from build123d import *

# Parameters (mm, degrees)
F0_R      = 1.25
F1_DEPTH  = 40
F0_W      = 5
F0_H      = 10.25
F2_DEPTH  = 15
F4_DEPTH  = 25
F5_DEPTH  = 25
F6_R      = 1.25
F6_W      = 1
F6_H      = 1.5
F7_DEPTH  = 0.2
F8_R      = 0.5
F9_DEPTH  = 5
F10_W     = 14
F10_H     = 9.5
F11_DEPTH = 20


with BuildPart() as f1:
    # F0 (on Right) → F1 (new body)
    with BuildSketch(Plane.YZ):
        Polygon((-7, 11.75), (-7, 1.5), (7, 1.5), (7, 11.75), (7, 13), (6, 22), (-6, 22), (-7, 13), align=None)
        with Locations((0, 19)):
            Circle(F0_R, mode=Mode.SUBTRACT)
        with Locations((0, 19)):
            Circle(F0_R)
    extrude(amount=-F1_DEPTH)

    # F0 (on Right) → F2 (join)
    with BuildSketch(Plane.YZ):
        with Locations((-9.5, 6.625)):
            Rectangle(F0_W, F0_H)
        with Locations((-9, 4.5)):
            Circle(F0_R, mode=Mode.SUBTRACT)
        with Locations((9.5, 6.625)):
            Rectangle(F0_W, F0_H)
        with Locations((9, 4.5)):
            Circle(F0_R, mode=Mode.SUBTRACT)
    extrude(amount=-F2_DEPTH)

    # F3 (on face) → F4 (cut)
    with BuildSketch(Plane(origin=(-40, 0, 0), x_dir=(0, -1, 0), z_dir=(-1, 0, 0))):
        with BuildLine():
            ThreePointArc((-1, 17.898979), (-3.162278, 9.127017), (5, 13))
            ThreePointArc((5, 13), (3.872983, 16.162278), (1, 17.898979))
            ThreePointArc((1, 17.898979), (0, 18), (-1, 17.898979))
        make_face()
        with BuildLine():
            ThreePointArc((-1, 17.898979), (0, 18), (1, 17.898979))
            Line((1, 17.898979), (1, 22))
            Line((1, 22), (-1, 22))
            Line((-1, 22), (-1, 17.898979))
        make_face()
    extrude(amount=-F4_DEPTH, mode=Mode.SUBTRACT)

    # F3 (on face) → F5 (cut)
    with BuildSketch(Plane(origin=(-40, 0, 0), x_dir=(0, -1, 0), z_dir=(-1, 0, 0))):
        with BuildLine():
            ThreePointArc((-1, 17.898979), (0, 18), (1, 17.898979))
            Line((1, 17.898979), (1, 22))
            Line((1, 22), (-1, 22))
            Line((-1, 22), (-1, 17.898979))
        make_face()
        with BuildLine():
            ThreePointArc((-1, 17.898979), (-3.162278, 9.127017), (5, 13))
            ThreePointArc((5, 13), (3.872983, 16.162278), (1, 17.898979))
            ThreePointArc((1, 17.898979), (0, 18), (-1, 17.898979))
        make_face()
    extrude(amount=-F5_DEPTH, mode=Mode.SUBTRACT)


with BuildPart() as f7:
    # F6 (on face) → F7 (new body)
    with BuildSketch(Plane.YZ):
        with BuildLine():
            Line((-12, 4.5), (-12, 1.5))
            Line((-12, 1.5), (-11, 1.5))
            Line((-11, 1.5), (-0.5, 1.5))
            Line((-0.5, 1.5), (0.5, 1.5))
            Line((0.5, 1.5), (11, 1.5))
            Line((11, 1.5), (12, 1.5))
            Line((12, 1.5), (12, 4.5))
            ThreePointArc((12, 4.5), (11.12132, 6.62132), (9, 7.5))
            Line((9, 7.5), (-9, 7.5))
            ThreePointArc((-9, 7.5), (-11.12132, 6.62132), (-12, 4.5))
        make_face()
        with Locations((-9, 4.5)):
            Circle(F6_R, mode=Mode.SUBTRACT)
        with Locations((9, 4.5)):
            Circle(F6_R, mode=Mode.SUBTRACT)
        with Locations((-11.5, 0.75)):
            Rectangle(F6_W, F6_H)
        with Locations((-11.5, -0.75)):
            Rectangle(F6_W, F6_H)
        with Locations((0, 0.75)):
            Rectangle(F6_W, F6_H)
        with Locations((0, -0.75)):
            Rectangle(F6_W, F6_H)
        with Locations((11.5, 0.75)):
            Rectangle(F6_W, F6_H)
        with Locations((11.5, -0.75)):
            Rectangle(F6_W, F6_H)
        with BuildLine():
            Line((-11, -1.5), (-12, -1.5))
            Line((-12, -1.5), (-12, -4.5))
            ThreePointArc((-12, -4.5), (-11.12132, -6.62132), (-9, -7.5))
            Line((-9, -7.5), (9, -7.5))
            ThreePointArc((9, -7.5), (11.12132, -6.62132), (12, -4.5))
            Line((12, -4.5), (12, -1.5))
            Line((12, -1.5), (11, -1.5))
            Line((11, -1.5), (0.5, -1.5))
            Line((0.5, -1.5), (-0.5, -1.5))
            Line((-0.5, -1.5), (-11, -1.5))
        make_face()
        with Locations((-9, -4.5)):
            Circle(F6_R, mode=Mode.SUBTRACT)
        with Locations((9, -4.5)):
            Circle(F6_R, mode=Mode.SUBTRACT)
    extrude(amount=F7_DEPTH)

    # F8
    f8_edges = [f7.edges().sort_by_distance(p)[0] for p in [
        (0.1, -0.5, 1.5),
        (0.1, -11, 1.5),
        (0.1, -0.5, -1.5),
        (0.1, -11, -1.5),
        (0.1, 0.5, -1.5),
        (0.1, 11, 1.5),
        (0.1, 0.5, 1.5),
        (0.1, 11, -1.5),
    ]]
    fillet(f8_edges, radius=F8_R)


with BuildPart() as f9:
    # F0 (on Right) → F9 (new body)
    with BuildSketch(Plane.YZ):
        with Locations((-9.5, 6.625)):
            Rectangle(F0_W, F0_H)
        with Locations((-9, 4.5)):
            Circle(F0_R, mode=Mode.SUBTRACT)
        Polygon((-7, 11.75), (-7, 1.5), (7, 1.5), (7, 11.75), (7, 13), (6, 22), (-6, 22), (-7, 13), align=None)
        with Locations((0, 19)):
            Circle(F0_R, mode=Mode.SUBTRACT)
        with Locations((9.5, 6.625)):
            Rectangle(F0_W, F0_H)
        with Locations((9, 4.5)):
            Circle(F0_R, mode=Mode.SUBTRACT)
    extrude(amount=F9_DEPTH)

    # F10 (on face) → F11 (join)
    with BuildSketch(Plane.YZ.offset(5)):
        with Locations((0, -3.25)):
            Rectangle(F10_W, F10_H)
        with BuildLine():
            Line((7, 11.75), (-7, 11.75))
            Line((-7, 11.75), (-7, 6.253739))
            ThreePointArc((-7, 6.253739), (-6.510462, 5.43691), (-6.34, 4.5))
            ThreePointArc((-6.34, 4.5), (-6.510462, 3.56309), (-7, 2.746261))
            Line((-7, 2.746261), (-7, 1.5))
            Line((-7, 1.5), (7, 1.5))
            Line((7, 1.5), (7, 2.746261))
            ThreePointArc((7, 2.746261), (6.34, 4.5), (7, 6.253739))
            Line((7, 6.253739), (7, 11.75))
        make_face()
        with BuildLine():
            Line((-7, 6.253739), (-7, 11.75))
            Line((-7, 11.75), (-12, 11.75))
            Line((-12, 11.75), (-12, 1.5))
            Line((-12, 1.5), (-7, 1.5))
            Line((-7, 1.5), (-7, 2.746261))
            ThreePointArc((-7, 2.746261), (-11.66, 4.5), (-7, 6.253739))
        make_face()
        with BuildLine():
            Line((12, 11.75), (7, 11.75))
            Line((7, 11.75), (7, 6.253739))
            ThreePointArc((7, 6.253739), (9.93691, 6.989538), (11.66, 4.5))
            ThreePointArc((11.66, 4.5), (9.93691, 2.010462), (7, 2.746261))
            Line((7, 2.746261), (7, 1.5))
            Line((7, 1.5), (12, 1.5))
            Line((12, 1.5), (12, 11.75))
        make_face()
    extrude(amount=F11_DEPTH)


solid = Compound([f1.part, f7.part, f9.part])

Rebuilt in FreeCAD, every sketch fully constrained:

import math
import FreeCAD as App
import Part
import Sketcher


def edges_at(feature, points):
    """Names of the edges that pass closest to the given points."""
    edges = feature.Shape.Edges
    near = lambda p: min(range(len(edges)), key=lambda i: edges[i].distToShape(Part.Vertex(*p))[0])
    return sorted({f"Edge{near(p) + 1}" for p in points})


def add_polygon(sketch, points):
    """Adds a closed chain of lines whose ends are joined by coincident constraints."""
    first, n = sketch.GeometryCount, len(points)
    for a, b in zip(points, points[1:] + points[:1]):
        sketch.addGeometry(Part.LineSegment(App.Vector(*a, 0), App.Vector(*b, 0)), False)
    for i in range(n):
        sketch.addConstraint(Sketcher.Constraint("Coincident", first + i, 2, first + (i + 1) % n, 1))

doc = App.newDocument("Part")
body = doc.addObject("PartDesign::Body", "Body")

# Sketch on YZ plane
sketch1 = doc.addObject("Sketcher::SketchObject", "Sketch")
body.addObject(sketch1)
sketch1.AttachmentSupport = (doc.YZ_Plane, [""])
sketch1.MapMode = "FlatFace"
add_polygon(sketch1, [(-7, 2), (7, 2), (7, 13), (6, 22), (-6, 22), (-7, 13)])  # lines 0-5
sketch1.addConstraint([
    Sketcher.Constraint("Horizontal", 0),
    Sketcher.Constraint("Vertical", 1),
    Sketcher.Constraint("Horizontal", 3),
    Sketcher.Constraint("Vertical", 5),
    Sketcher.Constraint("Symmetric", 1, 2, 4, 2, -2),
    Sketcher.Constraint("Equal", 2, 4),
    Sketcher.Constraint("DistanceX", 0, 1, 0, 2, 14.0),
    Sketcher.Constraint("DistanceX", 3, 2, 3, 1, 12.0),
    Sketcher.Constraint("DistanceY", 1, 1, 1, 2, 11.5),
    Sketcher.Constraint("DistanceY", -1, 1, 1, 2, 13.0),
    Sketcher.Constraint("DistanceY", -1, 1, 2, 2, 22.0),
])
pad1 = doc.addObject("PartDesign::Pad", "Pad")
body.addObject(pad1)
pad1.Profile = sketch1
pad1.Length = 40
pad1.Reversed = True

# Sketch on YZ plane
sketch2 = doc.addObject("Sketcher::SketchObject", "Sketch001")
body.addObject(sketch2)
sketch2.AttachmentSupport = (doc.YZ_Plane, [""])
sketch2.MapMode = "FlatFace"
add_polygon(sketch2, [(-12, 11.8), (-12, 1.5), (-7, 1.5), (-7, 11.8)])  # lines 0-3
sketch2.addGeometry(Part.Circle(App.Vector(-9, 4.5, 0), App.Vector(0, 0, 1), 1.2), False)  # 4
add_polygon(sketch2, [(7, 11.8), (7, 1.5), (12, 1.5), (12, 11.8)])  # lines 5-8
sketch2.addGeometry(Part.Circle(App.Vector(9, 4.5, 0), App.Vector(0, 0, 1), 1.2), False)  # 9
sketch2.addConstraint([
    Sketcher.Constraint("Vertical", 0),
    Sketcher.Constraint("Horizontal", 1),
    Sketcher.Constraint("Vertical", 2),
    Sketcher.Constraint("Horizontal", 3),
    Sketcher.Constraint("Vertical", 5),
    Sketcher.Constraint("Horizontal", 6),
    Sketcher.Constraint("Vertical", 7),
    Sketcher.Constraint("Horizontal", 8),
    Sketcher.Constraint("Equal", 4, 9),
    Sketcher.Constraint("Symmetric", 4, 3, 9, 3, -2),
    Sketcher.Constraint("Symmetric", 1, 2, 5, 2, -2),
    Sketcher.Constraint("Symmetric", 3, 2, 7, 2, -2),
    Sketcher.Constraint("Diameter", 4, 2.5),
    Sketcher.Constraint("DistanceX", 1, 1, 1, 2, 5.0),
    Sketcher.Constraint("DistanceX", 4, 3, -1, 1, 9.0),
    Sketcher.Constraint("DistanceX", 0, 2, -1, 1, 12.0),
    Sketcher.Constraint("DistanceY", 0, 2, 4, 3, 3.0),
    Sketcher.Constraint("DistanceY", 0, 2, 0, 1, 10.25),
    Sketcher.Constraint("DistanceY", -1, 1, 4, 3, 4.5),
])
pad2 = doc.addObject("PartDesign::Pad", "Pad001")
body.addObject(pad2)
pad2.Profile = sketch2
pad2.Length = 15
pad2.Reversed = True

# Sketch on YZ plane
sketch3 = doc.addObject("Sketcher::SketchObject", "Sketch002")
body.addObject(sketch3)
sketch3.AttachmentSupport = (doc.YZ_Plane, [""])
sketch3.MapMode = "FlatFace"
sketch3.AttachmentOffset = App.Placement(App.Vector(0, 0, -40), App.Rotation())
sketch3.addGeometry([
    Part.ArcOfCircle(Part.Circle(App.Vector(0, 13, 0), App.Vector(0, 0, 1), 5), math.radians(180), math.radians(438)),  # 0
    Part.ArcOfCircle(Part.Circle(App.Vector(0, 13, 0), App.Vector(0, 0, 1), 5), math.radians(102), math.radians(180)),  # 1
    Part.LineSegment(App.Vector(-1, 17.9, 0), App.Vector(-1, 22, 0)),  # 2
    Part.LineSegment(App.Vector(-1, 22, 0), App.Vector(1, 22, 0)),  # 3
    Part.LineSegment(App.Vector(1, 22, 0), App.Vector(1, 17.9, 0)),  # 4
], False)
sketch3.addConstraint([
    Sketcher.Constraint("Tangent", 0, 1, 1, 2),
    Sketcher.Constraint("Coincident", 1, 1, 2, 1),
    Sketcher.Constraint("Coincident", 2, 2, 3, 1),
    Sketcher.Constraint("Coincident", 3, 2, 4, 1),
    Sketcher.Constraint("Coincident", 4, 2, 0, 2),
    Sketcher.Constraint("Vertical", 2),
    Sketcher.Constraint("Horizontal", 3),
    Sketcher.Constraint("Vertical", 4),
    Sketcher.Constraint("Equal", 0, 1),
    Sketcher.Constraint("Symmetric", 1, 1, 4, 2, -2),
    Sketcher.Constraint("Horizontal", 1, 3, 0, 1),
    Sketcher.Constraint("Radius", 0, 5.0),
    Sketcher.Constraint("DistanceX", 3, 1, 3, 2, 2.0),
    Sketcher.Constraint("DistanceY", -1, 1, 0, 3, 13.0),
    Sketcher.Constraint("DistanceY", -1, 1, 2, 2, 22.0),
])
pocket1 = doc.addObject("PartDesign::Pocket", "Pocket")
body.addObject(pocket1)
pocket1.Profile = sketch3
pocket1.Length = 25
pocket1.Reversed = True

# Sketch on YZ plane
sketch4 = doc.addObject("Sketcher::SketchObject", "Sketch003")
body.addObject(sketch4)
sketch4.AttachmentSupport = (doc.YZ_Plane, [""])
sketch4.MapMode = "FlatFace"
sketch4.AttachmentOffset = App.Placement(App.Vector(0, 0, -40), App.Rotation())
sketch4.addGeometry([
    Part.LineSegment(App.Vector(-1, 17.9, 0), App.Vector(-1, 22, 0)),  # 0
    Part.LineSegment(App.Vector(-1, 22, 0), App.Vector(1, 22, 0)),  # 1
    Part.LineSegment(App.Vector(1, 22, 0), App.Vector(1, 17.9, 0)),  # 2
    Part.ArcOfCircle(Part.Circle(App.Vector(0, 13, 0), App.Vector(0, 0, 1), 5), math.radians(180), math.radians(438)),  # 3
    Part.ArcOfCircle(Part.Circle(App.Vector(0, 13, 0), App.Vector(0, 0, 1), 5), math.radians(102), math.radians(180)),  # 4
], False)
sketch4.addConstraint([
    Sketcher.Constraint("Coincident", 0, 2, 1, 1),
    Sketcher.Constraint("Coincident", 1, 2, 2, 1),
    Sketcher.Constraint("Coincident", 2, 2, 3, 2),
    Sketcher.Constraint("Tangent", 3, 1, 4, 2),
    Sketcher.Constraint("Coincident", 4, 1, 0, 1),
    Sketcher.Constraint("Vertical", 0),
    Sketcher.Constraint("Horizontal", 1),
    Sketcher.Constraint("Vertical", 2),
    Sketcher.Constraint("Equal", 3, 4),
    Sketcher.Constraint("Symmetric", 2, 2, 4, 1, -2),
    Sketcher.Constraint("Horizontal", 4, 3, 3, 1),
    Sketcher.Constraint("Radius", 3, 5.0),
    Sketcher.Constraint("DistanceX", 1, 1, 1, 2, 2.0),
    Sketcher.Constraint("DistanceY", -1, 1, 3, 3, 13.0),
    Sketcher.Constraint("DistanceY", -1, 1, 0, 2, 22.0),
])
pocket2 = doc.addObject("PartDesign::Pocket", "Pocket001")
body.addObject(pocket2)
pocket2.Profile = sketch4
pocket2.Length = 25
pocket2.Reversed = True
body2 = doc.addObject("PartDesign::Body", "Body001")

# Sketch on YZ plane
sketch5 = doc.addObject("Sketcher::SketchObject", "Sketch004")
body2.addObject(sketch5)
sketch5.AttachmentSupport = (doc.getObject("YZ_Plane001"), [""])
sketch5.MapMode = "FlatFace"
sketch5.addGeometry(Part.LineSegment(App.Vector(-12, 4.5, 0), App.Vector(-12, -4.5, 0)), False)  # 0
sketch5.addGeometry(Part.ArcOfCircle(Part.Circle(App.Vector(-9, -4.5, 0), App.Vector(0, 0, 1), 3), math.radians(-180), math.radians(-90)), False)  # 1
sketch5.addGeometry(Part.LineSegment(App.Vector(-9, -7.5, 0), App.Vector(9, -7.5, 0)), False)  # 2
sketch5.addGeometry(Part.ArcOfCircle(Part.Circle(App.Vector(9, -4.5, 0), App.Vector(0, 0, 1), 3), math.radians(-90), math.radians(0)), False)  # 3
sketch5.addGeometry(Part.LineSegment(App.Vector(12, -4.5, 0), App.Vector(12, 4.5, 0)), False)  # 4
sketch5.addGeometry(Part.ArcOfCircle(Part.Circle(App.Vector(9, 4.5, 0), App.Vector(0, 0, 1), 3), math.radians(0), math.radians(90)), False)  # 5
sketch5.addGeometry(Part.LineSegment(App.Vector(9, 7.5, 0), App.Vector(-9, 7.5, 0)), False)  # 6
sketch5.addGeometry(Part.ArcOfCircle(Part.Circle(App.Vector(-9, 4.5, 0), App.Vector(0, 0, 1), 3), math.radians(90), math.radians(180)), False)  # 7
sketch5.addGeometry(Part.Circle(App.Vector(-9, -4.5, 0), App.Vector(0, 0, 1), 1.2), False)  # 8
add_polygon(sketch5, [(-11, -1.5), (-11, 1.5), (-0.5, 1.5), (-0.5, -1.5)])  # lines 9-12
sketch5.addGeometry(Part.Circle(App.Vector(9, -4.5, 0), App.Vector(0, 0, 1), 1.2), False)  # 13
add_polygon(sketch5, [(0.5, -1.5), (0.5, 1.5), (11, 1.5), (11, -1.5)])  # lines 14-17
sketch5.addGeometry(Part.Circle(App.Vector(-9, 4.5, 0), App.Vector(0, 0, 1), 1.2), False)  # 18
sketch5.addGeometry(Part.Circle(App.Vector(9, 4.5, 0), App.Vector(0, 0, 1), 1.2), False)  # 19
sketch5.addConstraint([
    Sketcher.Constraint("Tangent", 0, 2, 1, 1),
    Sketcher.Constraint("Tangent", 1, 2, 2, 1),
    Sketcher.Constraint("Tangent", 2, 2, 3, 1),
    Sketcher.Constraint("Tangent", 3, 2, 4, 1),
    Sketcher.Constraint("Tangent", 4, 2, 5, 1),
    Sketcher.Constraint("Tangent", 5, 2, 6, 1),
    Sketcher.Constraint("Tangent", 6, 2, 7, 1),
    Sketcher.Constraint("Tangent", 7, 2, 0, 1),
    Sketcher.Constraint("Vertical", 0),
    Sketcher.Constraint("Horizontal", 2),
    Sketcher.Constraint("Vertical", 4),
    Sketcher.Constraint("Horizontal", 6),
    Sketcher.Constraint("Vertical", 9),
    Sketcher.Constraint("Horizontal", 10),
    Sketcher.Constraint("Vertical", 11),
    Sketcher.Constraint("Horizontal", 12),
    Sketcher.Constraint("Vertical", 14),
    Sketcher.Constraint("Horizontal", 15),
    Sketcher.Constraint("Vertical", 16),
    Sketcher.Constraint("Horizontal", 17),
    Sketcher.Constraint("Coincident", 8, 3, 1, 3),
    Sketcher.Constraint("Coincident", 13, 3, 3, 3),
    Sketcher.Constraint("Coincident", 18, 3, 7, 3),
    Sketcher.Constraint("Coincident", 19, 3, 5, 3),
    Sketcher.Constraint("Equal", 1, 3),
    Sketcher.Constraint("Equal", 3, 5),
    Sketcher.Constraint("Equal", 5, 7),
    Sketcher.Constraint("Equal", 8, 13),
    Sketcher.Constraint("Equal", 13, 18),
    Sketcher.Constraint("Equal", 18, 19),
    Sketcher.Constraint("Symmetric", 1, 3, 5, 3, -1, 1),
    Sketcher.Constraint("Symmetric", 11, 2, 14, 2, -1, 1),
    Sketcher.Constraint("Symmetric", 9, 2, 16, 2, -1, 1),
    Sketcher.Constraint("Horizontal", 10, 2, 14, 2),
    Sketcher.Constraint("Radius", 1, 3.000001),
    Sketcher.Constraint("Diameter", 8, 2.5),
    Sketcher.Constraint("DistanceX", 2, 1, 2, 2, 18.0),
    Sketcher.Constraint("DistanceY", 0, 2, 0, 1, 9.0),
    Sketcher.Constraint("DistanceY", 9, 1, 9, 2, 3.0),
    Sketcher.Constraint("DistanceX", 10, 1, 10, 2, 10.5),
    Sketcher.Constraint("DistanceX", 9, 2, -1, 1, 11.0),
])
pad3 = doc.addObject("PartDesign::Pad", "Pad002")
body2.addObject(pad3)
pad3.Profile = sketch5
pad3.Length = 0.2
doc.recompute()

fillet = doc.addObject("PartDesign::Fillet", "Fillet")
body2.addObject(fillet)
fillet.Base = (pad3, edges_at(pad3, [
    (0.1, -0.5, 1.5),
    (0.1, -11, 1.5),
    (0.1, -0.5, -1.5),
    (0.1, -11, -1.5),
    (0.1, 0.5, -1.5),
    (0.1, 11, 1.5),
    (0.1, 0.5, 1.5),
    (0.1, 11, -1.5),
]))
fillet.Radius = 0.5
body3 = doc.addObject("PartDesign::Body", "Body002")

# Sketch on YZ plane
sketch6 = doc.addObject("Sketcher::SketchObject", "Sketch005")
body3.addObject(sketch6)
sketch6.AttachmentSupport = (doc.getObject("YZ_Plane002"), [""])
sketch6.MapMode = "FlatFace"
add_polygon(sketch6, [(-12, 11.8), (-12, 1.5), (12, 1.5), (12, 11.8), (7, 11.8), (7, 13), (6, 22), (-6, 22), (-7, 13), (-7, 11.8)])  # lines 0-9
sketch6.addGeometry(Part.Circle(App.Vector(-9, 4.5, 0), App.Vector(0, 0, 1), 1.2), False)  # 10
sketch6.addGeometry(Part.Circle(App.Vector(9, 4.5, 0), App.Vector(0, 0, 1), 1.2), False)  # 11
sketch6.addGeometry(Part.Circle(App.Vector(0, 19, 0), App.Vector(0, 0, 1), 1.2), False)  # 12
sketch6.addConstraint([
    Sketcher.Constraint("Vertical", 0),
    Sketcher.Constraint("Horizontal", 1),
    Sketcher.Constraint("Vertical", 2),
    Sketcher.Constraint("Horizontal", 3),
    Sketcher.Constraint("Vertical", 4),
    Sketcher.Constraint("Horizontal", 6),
    Sketcher.Constraint("Vertical", 8),
    Sketcher.Constraint("Horizontal", 9),
    Sketcher.Constraint("Equal", 10, 11),
    Sketcher.Constraint("Equal", 11, 12),
    Sketcher.Constraint("Symmetric", 10, 3, 11, 3, -2),
    Sketcher.Constraint("Symmetric", 4, 2, 7, 2, -2),
    Sketcher.Constraint("Symmetric", 2, 2, 9, 2, -2),
    Sketcher.Constraint("PointOnObject", 12, 3, -2),
    Sketcher.Constraint("Equal", 5, 7),
    Sketcher.Constraint("Diameter", 10, 2.5),
    Sketcher.Constraint("DistanceX", 1, 1, 1, 2, 24.0),
    Sketcher.Constraint("DistanceX", 3, 2, 3, 1, 5.0),
    Sketcher.Constraint("DistanceX", 6, 2, 6, 1, 12.0),
    Sketcher.Constraint("DistanceX", 10, 3, -1, 1, 9.0),
    Sketcher.Constraint("DistanceY", -1, 1, 12, 3, 19.0),
    Sketcher.Constraint("DistanceY", -1, 1, 4, 2, 13.0),
    Sketcher.Constraint("DistanceY", -1, 1, 5, 2, 22.0),
    Sketcher.Constraint("DistanceY", 0, 2, 10, 3, 3.0),
    Sketcher.Constraint("DistanceY", 0, 2, 0, 1, 10.25),
    Sketcher.Constraint("DistanceY", 4, 1, 4, 2, 1.25),
])
pad4 = doc.addObject("PartDesign::Pad", "Pad003")
body3.addObject(pad4)
pad4.Profile = sketch6
pad4.Length = 5

# Sketch on YZ plane
sketch7 = doc.addObject("Sketcher::SketchObject", "Sketch006")
body3.addObject(sketch7)
sketch7.AttachmentSupport = (doc.getObject("YZ_Plane002"), [""])
sketch7.MapMode = "FlatFace"
sketch7.AttachmentOffset = App.Placement(App.Vector(0, 0, 5), App.Rotation())
add_polygon(sketch7, [(-7, -8), (7, -8), (7, 1.5), (12, 1.5), (12, 11.8), (-12, 11.8), (-12, 1.5), (-7, 1.5)])  # lines 0-7
sketch7.addGeometry(Part.ArcOfCircle(Part.Circle(App.Vector(9, 4.5, 0), App.Vector(0, 0, 1), 2.7), math.radians(139), math.radians(221)), False)  # 8
sketch7.addGeometry(Part.ArcOfCircle(Part.Circle(App.Vector(9, 4.5, 0), App.Vector(0, 0, 1), 2.7), math.radians(0), math.radians(139)), False)  # 9
sketch7.addGeometry(Part.ArcOfCircle(Part.Circle(App.Vector(9, 4.5, 0), App.Vector(0, 0, 1), 2.7), math.radians(-139), math.radians(0)), False)  # 10
sketch7.addGeometry(Part.ArcOfCircle(Part.Circle(App.Vector(-9, 4.5, 0), App.Vector(0, 0, 1), 2.7), math.radians(0), math.radians(41)), False)  # 11
sketch7.addGeometry(Part.ArcOfCircle(Part.Circle(App.Vector(-9, 4.5, 0), App.Vector(0, 0, 1), 2.7), math.radians(-41), math.radians(0)), False)  # 12
sketch7.addGeometry(Part.ArcOfCircle(Part.Circle(App.Vector(-9, 4.5, 0), App.Vector(0, 0, 1), 2.7), math.radians(41), math.radians(319)), False)  # 13
sketch7.addConstraint([
    Sketcher.Constraint("Tangent", 8, 1, 9, 2),
    Sketcher.Constraint("Tangent", 9, 1, 10, 2),
    Sketcher.Constraint("Tangent", 10, 1, 8, 2),
    Sketcher.Constraint("Tangent", 11, 1, 12, 2),
    Sketcher.Constraint("Tangent", 12, 1, 13, 2),
    Sketcher.Constraint("Tangent", 13, 1, 11, 2),
    Sketcher.Constraint("Horizontal", 0),
    Sketcher.Constraint("Vertical", 1),
    Sketcher.Constraint("Horizontal", 2),
    Sketcher.Constraint("Vertical", 3),
    Sketcher.Constraint("Horizontal", 4),
    Sketcher.Constraint("Vertical", 5),
    Sketcher.Constraint("Horizontal", 6),
    Sketcher.Constraint("Vertical", 7),
    Sketcher.Constraint("Equal", 10, 11),
    Sketcher.Constraint("Symmetric", 8, 3, 11, 3, -2),
    Sketcher.Constraint("Symmetric", 2, 2, 5, 2, -2),
    Sketcher.Constraint("Horizontal", 13, 3, 9, 1),
    Sketcher.Constraint("Horizontal", 9, 1, 11, 1),
    Sketcher.Constraint("Horizontal", 10, 1, 12, 1),
    Sketcher.Constraint("Horizontal", 8, 1, 13, 1),
    Sketcher.Constraint("Vertical", 1, 2, 8, 1),
    Sketcher.Constraint("Vertical", 8, 1, 10, 1),
    Sketcher.Constraint("Vertical", 7, 2, 12, 1),
    Sketcher.Constraint("DistanceX", 0, 1, 0, 2, 14.0),
    Sketcher.Constraint("DistanceX", 2, 1, 2, 2, 5.0),
    Sketcher.Constraint("Radius", 8, 2.66),
    Sketcher.Constraint("DistanceY", 1, 1, 1, 2, 9.5),
    Sketcher.Constraint("DistanceX", -1, 1, 8, 3, 9.0),
    Sketcher.Constraint("DistanceY", 0, 2, -1, 1, 8.0),
    Sketcher.Constraint("DistanceY", 1, 2, 9, 3, 3.0),
    Sketcher.Constraint("DistanceY", 3, 1, 3, 2, 10.25),
])
pad5 = doc.addObject("PartDesign::Pad", "Pad004")
body3.addObject(pad5)
pad5.Profile = sketch7
pad5.Length = 20

doc.recompute()
